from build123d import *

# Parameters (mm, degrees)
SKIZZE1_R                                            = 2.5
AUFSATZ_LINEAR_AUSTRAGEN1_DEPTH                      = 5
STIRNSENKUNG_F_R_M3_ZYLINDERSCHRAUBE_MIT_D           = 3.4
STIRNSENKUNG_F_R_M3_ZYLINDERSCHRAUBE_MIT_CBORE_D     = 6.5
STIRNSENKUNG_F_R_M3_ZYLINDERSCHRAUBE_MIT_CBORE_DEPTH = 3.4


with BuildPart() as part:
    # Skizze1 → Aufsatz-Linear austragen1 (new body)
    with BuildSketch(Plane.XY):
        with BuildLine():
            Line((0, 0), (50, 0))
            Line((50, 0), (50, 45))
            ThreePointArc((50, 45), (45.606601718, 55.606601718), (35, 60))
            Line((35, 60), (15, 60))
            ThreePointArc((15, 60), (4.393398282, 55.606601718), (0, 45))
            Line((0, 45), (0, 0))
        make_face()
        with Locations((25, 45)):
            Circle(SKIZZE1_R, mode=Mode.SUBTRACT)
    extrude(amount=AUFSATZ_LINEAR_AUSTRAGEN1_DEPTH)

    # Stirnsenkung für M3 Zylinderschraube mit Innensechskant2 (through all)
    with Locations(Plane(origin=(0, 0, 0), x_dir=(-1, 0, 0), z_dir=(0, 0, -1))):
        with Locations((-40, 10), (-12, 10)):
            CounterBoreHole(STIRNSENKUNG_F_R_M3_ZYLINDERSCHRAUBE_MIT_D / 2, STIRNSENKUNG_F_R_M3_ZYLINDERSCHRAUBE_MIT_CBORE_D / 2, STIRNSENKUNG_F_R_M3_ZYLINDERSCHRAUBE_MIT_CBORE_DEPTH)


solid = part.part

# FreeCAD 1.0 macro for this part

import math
import FreeCAD as App
import Part
import Sketcher

V = App.Vector
Q = App.Units.Quantity

doc = App.newDocument("Part")
body = doc.addObject("PartDesign::Body", "Body")

# Sketch on XY plane
sketch1 = doc.addObject("Sketcher::SketchObject", "Sketch")
body.addObject(sketch1)
sketch1.AttachmentSupport = (doc.XY_Plane, [""])
sketch1.MapMode = "FlatFace"
sketch1.addGeometry([
    Part.LineSegment(V(0, 0, 0), V(50, 0, 0)),  # 0
    Part.LineSegment(V(50, 0, 0), V(50, 45, 0)),  # 1
    Part.ArcOfCircle(Part.Circle(V(35, 45, 0), V(0, 0, 1), 15), math.radians(0), math.radians(90)),  # 2
    Part.LineSegment(V(35, 60, 0), V(15, 60, 0)),  # 3
    Part.ArcOfCircle(Part.Circle(V(15, 45, 0), V(0, 0, 1), 15), math.radians(90), math.radians(180)),  # 4
    Part.LineSegment(V(0, 45, 0), V(0, 0, 0)),  # 5
    Part.Circle(V(25, 45, 0), V(0, 0, 1), 2.5),  # 6
], False)
sketch1.addConstraint([
    Sketcher.Constraint("Coincident", 0, 2, 1, 1),
    Sketcher.Constraint("Tangent", 1, 2, 2, 1),
    Sketcher.Constraint("Tangent", 2, 2, 3, 1),
    Sketcher.Constraint("Tangent", 3, 2, 4, 1),
    Sketcher.Constraint("Tangent", 4, 2, 5, 1),
    Sketcher.Constraint("Coincident", 5, 2, 0, 1),
    Sketcher.Constraint("Horizontal", 0),
    Sketcher.Constraint("Vertical", 1),
    Sketcher.Constraint("Horizontal", 3),
    Sketcher.Constraint("Vertical", 5),
    Sketcher.Constraint("Coincident", 5, 2, -1, 1),
    Sketcher.Constraint("Equal", 2, 4),
    Sketcher.Constraint("Horizontal", 4, 3, 6, 3),
    Sketcher.Constraint("Diameter", 6, Q("5 mm")),
    Sketcher.Constraint("Radius", 2, Q("15 mm")),
    Sketcher.Constraint("DistanceX", 0, 1, 0, 2, Q("50 mm")),
    Sketcher.Constraint("DistanceY", 1, 1, 1, 2, Q("45 mm")),
    Sketcher.Constraint("DistanceX", -1, 1, 6, 3, Q("25 mm")),
])
pad1 = doc.addObject("PartDesign::Pad", "Pad")
body.addObject(pad1)
pad1.Profile = sketch1
pad1.Length = 5

# Sketch on XY plane
sketch2 = doc.addObject("Sketcher::SketchObject", "Sketch001")
body.addObject(sketch2)
sketch2.AttachmentSupport = (doc.XY_Plane, [""])
sketch2.MapMode = "FlatFace"
sketch2.addGeometry([
    Part.Circle(V(40, 10, 0), V(0, 0, 1), 1.7),
    Part.Circle(V(12, 10, 0), V(0, 0, 1), 1.7),
], False)
sketch2.addConstraint([
    Sketcher.Constraint("Equal", 0, 1),
    Sketcher.Constraint("Horizontal", 0, 3, 1, 3),
    Sketcher.Constraint("Diameter", 0, Q("3.4 mm")),
    Sketcher.Constraint("DistanceX", -1, 1, 0, 3, Q("40 mm")),
    Sketcher.Constraint("DistanceY", -1, 1, 0, 3, Q("10 mm")),
    Sketcher.Constraint("DistanceX", -1, 1, 1, 3, Q("12 mm")),
])
doc.recompute()
hole = doc.addObject("PartDesign::Hole", "Hole")
body.addObject(hole)
hole.Profile = sketch2
hole.ThreadType = "None"
hole.Diameter = 3.4
hole.DepthType = "ThroughAll"
hole.HoleCutType = "Counterbore"
hole.HoleCutDiameter = 6.5
hole.HoleCutDepth = 3.4
hole.Reversed = True

doc.recompute()
